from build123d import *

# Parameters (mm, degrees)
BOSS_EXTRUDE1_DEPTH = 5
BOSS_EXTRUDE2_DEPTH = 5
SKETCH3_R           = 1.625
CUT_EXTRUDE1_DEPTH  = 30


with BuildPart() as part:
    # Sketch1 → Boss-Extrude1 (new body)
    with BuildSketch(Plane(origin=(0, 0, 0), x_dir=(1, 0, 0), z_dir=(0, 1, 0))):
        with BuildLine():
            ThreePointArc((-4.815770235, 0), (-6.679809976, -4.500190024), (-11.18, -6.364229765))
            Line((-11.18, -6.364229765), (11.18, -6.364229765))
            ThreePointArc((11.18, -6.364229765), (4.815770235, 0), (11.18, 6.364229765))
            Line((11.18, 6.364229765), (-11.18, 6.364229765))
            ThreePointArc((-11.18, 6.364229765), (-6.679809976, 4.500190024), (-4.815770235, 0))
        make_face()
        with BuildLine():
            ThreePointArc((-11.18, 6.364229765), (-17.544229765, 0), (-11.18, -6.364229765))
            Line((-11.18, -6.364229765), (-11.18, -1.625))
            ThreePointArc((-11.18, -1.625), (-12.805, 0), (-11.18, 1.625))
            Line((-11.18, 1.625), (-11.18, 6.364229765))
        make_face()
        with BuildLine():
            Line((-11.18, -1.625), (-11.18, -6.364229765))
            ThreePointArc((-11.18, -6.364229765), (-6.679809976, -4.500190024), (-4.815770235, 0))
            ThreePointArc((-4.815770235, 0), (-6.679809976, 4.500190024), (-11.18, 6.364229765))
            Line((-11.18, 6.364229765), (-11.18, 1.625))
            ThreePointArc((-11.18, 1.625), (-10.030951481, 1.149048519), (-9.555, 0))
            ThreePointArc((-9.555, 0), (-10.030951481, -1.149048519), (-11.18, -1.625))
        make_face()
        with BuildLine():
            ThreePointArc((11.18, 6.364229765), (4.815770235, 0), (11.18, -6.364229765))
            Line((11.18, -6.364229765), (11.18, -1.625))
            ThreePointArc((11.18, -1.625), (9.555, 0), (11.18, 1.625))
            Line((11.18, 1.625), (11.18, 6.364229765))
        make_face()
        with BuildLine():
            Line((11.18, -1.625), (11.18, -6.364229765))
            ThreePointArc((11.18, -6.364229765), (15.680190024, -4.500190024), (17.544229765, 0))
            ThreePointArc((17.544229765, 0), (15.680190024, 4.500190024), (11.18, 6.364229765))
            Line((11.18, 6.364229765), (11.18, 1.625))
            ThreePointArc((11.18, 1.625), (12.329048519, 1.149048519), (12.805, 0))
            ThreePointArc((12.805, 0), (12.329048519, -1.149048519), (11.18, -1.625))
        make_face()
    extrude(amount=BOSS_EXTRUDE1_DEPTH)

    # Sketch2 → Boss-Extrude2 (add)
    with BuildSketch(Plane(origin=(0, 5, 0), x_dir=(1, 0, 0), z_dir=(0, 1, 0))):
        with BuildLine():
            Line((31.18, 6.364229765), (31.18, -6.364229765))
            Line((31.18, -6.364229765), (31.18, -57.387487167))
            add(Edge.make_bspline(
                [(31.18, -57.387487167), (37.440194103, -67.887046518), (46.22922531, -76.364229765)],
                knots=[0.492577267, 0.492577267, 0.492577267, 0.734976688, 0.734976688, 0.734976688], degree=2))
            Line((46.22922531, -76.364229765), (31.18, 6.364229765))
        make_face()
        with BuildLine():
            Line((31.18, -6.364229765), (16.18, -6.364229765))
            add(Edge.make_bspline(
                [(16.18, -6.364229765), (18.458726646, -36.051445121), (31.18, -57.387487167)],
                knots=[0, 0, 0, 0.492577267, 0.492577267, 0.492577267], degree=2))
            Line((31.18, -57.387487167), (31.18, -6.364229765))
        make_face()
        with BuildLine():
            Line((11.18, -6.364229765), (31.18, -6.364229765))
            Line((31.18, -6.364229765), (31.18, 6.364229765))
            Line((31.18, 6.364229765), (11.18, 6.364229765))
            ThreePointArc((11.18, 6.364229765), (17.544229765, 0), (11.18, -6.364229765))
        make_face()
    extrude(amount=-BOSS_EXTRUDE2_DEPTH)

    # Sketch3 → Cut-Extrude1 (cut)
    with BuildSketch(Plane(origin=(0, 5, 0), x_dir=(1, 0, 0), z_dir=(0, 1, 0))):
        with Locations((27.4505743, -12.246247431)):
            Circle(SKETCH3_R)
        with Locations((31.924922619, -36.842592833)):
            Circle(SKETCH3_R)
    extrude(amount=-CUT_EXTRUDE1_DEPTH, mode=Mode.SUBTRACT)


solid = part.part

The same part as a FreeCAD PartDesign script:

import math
import FreeCAD as App
import Part
import Sketcher

V = App.Vector
Q = App.Units.Quantity

doc = App.newDocument("Part")
body = doc.addObject("PartDesign::Body", "Body")

# Sketch on XZ plane
sketch1 = body.newObject("Sketcher::SketchObject", "Sketch")
sketch1.AttachmentSupport = (doc.getObject("XZ_Plane"), [""])
sketch1.MapMode = "FlatFace"
sketch1.addGeometry(Part.LineSegment(V(-11.18, 6.36423, 0), V(11.18, 6.36423, 0)), False)
sketch1.addGeometry(Part.ArcOfCircle(Part.Circle(V(11.18, 0, 0), V(0, 0, 1), 6.36423), math.radians(0), math.radians(90)), False)
sketch1.addGeometry(Part.ArcOfCircle(Part.Circle(V(11.18, 0, 0), V(0, 0, 1), 6.36423), math.radians(-90), math.radians(0)), False)
sketch1.addGeometry(Part.LineSegment(V(11.18, -6.36423, 0), V(-11.18, -6.36423, 0)), False)
sketch1.addGeometry(Part.ArcOfCircle(Part.Circle(V(-11.18, 0, 0), V(0, 0, 1), 6.36423), math.radians(90), math.radians(270)), False)
sketch1.addGeometry(Part.ArcOfCircle(Part.Circle(V(11.18, 0, 0), V(0, 0, 1), 1.625), math.radians(90), math.radians(270)), False)
sketch1.addGeometry(Part.ArcOfCircle(Part.Circle(V(11.18, 0, 0), V(0, 0, 1), 1.625), math.radians(-90), math.radians(0)), False)
sketch1.addGeometry(Part.ArcOfCircle(Part.Circle(V(11.18, 0, 0), V(0, 0, 1), 1.625), math.radians(0), math.radians(90)), False)
sketch1.addGeometry(Part.ArcOfCircle(Part.Circle(V(-11.18, 0, 0), V(0, 0, 1), 1.625), math.radians(-90), math.radians(0)), False)
sketch1.addGeometry(Part.ArcOfCircle(Part.Circle(V(-11.18, 0, 0), V(0, 0, 1), 1.625), math.radians(0), math.radians(90)), False)
sketch1.addGeometry(Part.ArcOfCircle(Part.Circle(V(-11.18, 0, 0), V(0, 0, 1), 1.625), math.radians(90), math.radians(270)), False)
sketch1.addConstraint(Sketcher.Constraint("Tangent", 0, 2, 1, 2))
sketch1.addConstraint(Sketcher.Constraint("Tangent", 1, 1, 2, 2))
sketch1.addConstraint(Sketcher.Constraint("Tangent", 2, 1, 3, 1))
sketch1.addConstraint(Sketcher.Constraint("Tangent", 3, 2, 4, 2))
sketch1.addConstraint(Sketcher.Constraint("Tangent", 4, 1, 0, 1))
sketch1.addConstraint(Sketcher.Constraint("Tangent", 5, 2, 6, 1))
sketch1.addConstraint(Sketcher.Constraint("Tangent", 6, 2, 7, 1))
sketch1.addConstraint(Sketcher.Constraint("Tangent", 7, 2, 5, 1))
sketch1.addConstraint(Sketcher.Constraint("Tangent", 8, 2, 9, 1))
sketch1.addConstraint(Sketcher.Constraint("Tangent", 9, 2, 10, 1))
sketch1.addConstraint(Sketcher.Constraint("Tangent", 10, 2, 8, 1))
sketch1.addConstraint(Sketcher.Constraint("Horizontal", 0))
sketch1.addConstraint(Sketcher.Constraint("Horizontal", 3))
sketch1.addConstraint(Sketcher.Constraint("Coincident", 5, 3, 1, 3))
sketch1.addConstraint(Sketcher.Constraint("Coincident", 8, 3, 4, 3))
sketch1.addConstraint(Sketcher.Constraint("Equal", 1, 2))
sketch1.addConstraint(Sketcher.Constraint("Equal", 7, 8))
sketch1.addConstraint(Sketcher.Constraint("Symmetric", 1, 3, 4, 3, -1, 1))
sketch1.addConstraint(Sketcher.Constraint("PointOnObject", 1, 1, -1))
sketch1.addConstraint(Sketcher.Constraint("PointOnObject", 6, 2, -1))
sketch1.addConstraint(Sketcher.Constraint("PointOnObject", 8, 2, -1))
sketch1.addConstraint(Sketcher.Constraint("Vertical", 2, 1, 5, 2))
sketch1.addConstraint(Sketcher.Constraint("Vertical", 5, 2, 7, 2))
sketch1.addConstraint(Sketcher.Constraint("Vertical", 4, 1, 9, 2))
sketch1.addConstraint(Sketcher.Constraint("Vertical", 9, 2, 10, 2))
sketch1.addConstraint(Sketcher.Constraint("Radius", 5, Q("1.625 mm")))
sketch1.addConstraint(Sketcher.Constraint("DistanceX", 0, 1, 0, 2, Q("22.36 mm")))
sketch1.addConstraint(Sketcher.Constraint("Radius", 1, Q("6.36423 mm")))
pad1 = body.newObject("PartDesign::Pad", "Pad")
pad1.Profile = sketch1
pad1.Length = 5
pad1.Reversed = True

# Sketch on XZ plane
sketch2 = body.newObject("Sketcher::SketchObject", "Sketch001")
sketch2.AttachmentSupport = (doc.getObject("XZ_Plane"), [""])
sketch2.MapMode = "FlatFace"
sketch2.AttachmentOffset = App.Placement(V(0, 0, -5), App.Rotation())
sketch2.addGeometry(Part.BSplineCurve([V(16.18, 6.36423, 0), V(18.458727, 36.051445, 0), V(31.18, 57.387487, 0)], [3, 3], [0, 0.492577267], False, 2, [1, 1, 1], False), False)
sketch2.addGeometry(Part.BSplineCurve([V(31.18, 57.387487, 0), V(37.440194, 67.887047, 0), V(46.229225, 76.36423, 0)], [3, 3], [0.492577267, 0.734976688], False, 2, [1, 1, 1], False), False)
sketch2.addGeometry(Part.LineSegment(V(46.229225, 76.36423, 0), V(31.18, -6.36423, 0)), False)
sketch2.addGeometry(Part.LineSegment(V(31.18, -6.36423, 0), V(11.18, -6.36423, 0)), False)
sketch2.addGeometry(Part.ArcOfCircle(Part.Circle(V(11.18, 0, 0), V(0, 0, 1), 6.36423), math.radians(-90), math.radians(90)), False)
sketch2.addGeometry(Part.LineSegment(V(11.18, 6.36423, 0), V(16.18, 6.36423, 0)), False)
sketch2.addConstraint(Sketcher.Constraint("Block", 0))
sketch2.addConstraint(Sketcher.Constraint("Block", 1))
sketch2.addConstraint(Sketcher.Constraint("Coincident", 1, 2, 2, 1))
sketch2.addConstraint(Sketcher.Constraint("Coincident", 2, 2, 3, 1))
sketch2.addConstraint(Sketcher.Constraint("Tangent", 3, 2, 4, 1))
sketch2.addConstraint(Sketcher.Constraint("Tangent", 4, 2, 5, 1))
sketch2.addConstraint(Sketcher.Constraint("Coincident", 5, 2, 0, 1))
sketch2.addConstraint(Sketcher.Constraint("Horizontal", 3))
sketch2.addConstraint(Sketcher.Constraint("Horizontal", 5))
sketch2.addConstraint(Sketcher.Constraint("PointOnObject", 4, 3, -1))
sketch2.addConstraint(Sketcher.Constraint("DistanceX", 3, 2, 3, 1, Q("20 mm")))
sketch2.addConstraint(Sketcher.Constraint("DistanceX", 5, 1, 5, 2, Q("5 mm")))
pad2 = body.newObject("PartDesign::Pad", "Pad001")
pad2.Profile = sketch2
pad2.Length = 5

# Sketch on XZ plane
sketch3 = body.newObject("Sketcher::SketchObject", "Sketch002")
sketch3.AttachmentSupport = (doc.getObject("XZ_Plane"), [""])
sketch3.MapMode = "FlatFace"
sketch3.AttachmentOffset = App.Placement(V(0, 0, -5), App.Rotation())
sketch3.addGeometry(Part.Circle(V(27.450574, 12.246247, 0), V(0, 0, 1), 1.625), False)
sketch3.addGeometry(Part.Circle(V(31.924923, 36.842593, 0), V(0, 0, 1), 1.625), False)
sketch3.addConstraint(Sketcher.Constraint("Equal", 0, 1))
sketch3.addConstraint(Sketcher.Constraint("Diameter", 0, Q("3.25 mm")))
sketch3.addConstraint(Sketcher.Constraint("DistanceX", 0, 3, 1, 3, Q("4.474348 mm")))
sketch3.addConstraint(Sketcher.Constraint("DistanceX", -1, 1, 0, 3, Q("27.450574 mm")))
sketch3.addConstraint(Sketcher.Constraint("DistanceY", -1, 1, 0, 3, Q("12.246247 mm")))
sketch3.addConstraint(Sketcher.Constraint("DistanceY", -1, 1, 1, 3, Q("36.842593 mm")))
pocket1 = body.newObject("PartDesign::Pocket", "Pocket")
pocket1.Profile = sketch3
pocket1.Length = 30
pocket1.Reversed = True

doc.recompute()
